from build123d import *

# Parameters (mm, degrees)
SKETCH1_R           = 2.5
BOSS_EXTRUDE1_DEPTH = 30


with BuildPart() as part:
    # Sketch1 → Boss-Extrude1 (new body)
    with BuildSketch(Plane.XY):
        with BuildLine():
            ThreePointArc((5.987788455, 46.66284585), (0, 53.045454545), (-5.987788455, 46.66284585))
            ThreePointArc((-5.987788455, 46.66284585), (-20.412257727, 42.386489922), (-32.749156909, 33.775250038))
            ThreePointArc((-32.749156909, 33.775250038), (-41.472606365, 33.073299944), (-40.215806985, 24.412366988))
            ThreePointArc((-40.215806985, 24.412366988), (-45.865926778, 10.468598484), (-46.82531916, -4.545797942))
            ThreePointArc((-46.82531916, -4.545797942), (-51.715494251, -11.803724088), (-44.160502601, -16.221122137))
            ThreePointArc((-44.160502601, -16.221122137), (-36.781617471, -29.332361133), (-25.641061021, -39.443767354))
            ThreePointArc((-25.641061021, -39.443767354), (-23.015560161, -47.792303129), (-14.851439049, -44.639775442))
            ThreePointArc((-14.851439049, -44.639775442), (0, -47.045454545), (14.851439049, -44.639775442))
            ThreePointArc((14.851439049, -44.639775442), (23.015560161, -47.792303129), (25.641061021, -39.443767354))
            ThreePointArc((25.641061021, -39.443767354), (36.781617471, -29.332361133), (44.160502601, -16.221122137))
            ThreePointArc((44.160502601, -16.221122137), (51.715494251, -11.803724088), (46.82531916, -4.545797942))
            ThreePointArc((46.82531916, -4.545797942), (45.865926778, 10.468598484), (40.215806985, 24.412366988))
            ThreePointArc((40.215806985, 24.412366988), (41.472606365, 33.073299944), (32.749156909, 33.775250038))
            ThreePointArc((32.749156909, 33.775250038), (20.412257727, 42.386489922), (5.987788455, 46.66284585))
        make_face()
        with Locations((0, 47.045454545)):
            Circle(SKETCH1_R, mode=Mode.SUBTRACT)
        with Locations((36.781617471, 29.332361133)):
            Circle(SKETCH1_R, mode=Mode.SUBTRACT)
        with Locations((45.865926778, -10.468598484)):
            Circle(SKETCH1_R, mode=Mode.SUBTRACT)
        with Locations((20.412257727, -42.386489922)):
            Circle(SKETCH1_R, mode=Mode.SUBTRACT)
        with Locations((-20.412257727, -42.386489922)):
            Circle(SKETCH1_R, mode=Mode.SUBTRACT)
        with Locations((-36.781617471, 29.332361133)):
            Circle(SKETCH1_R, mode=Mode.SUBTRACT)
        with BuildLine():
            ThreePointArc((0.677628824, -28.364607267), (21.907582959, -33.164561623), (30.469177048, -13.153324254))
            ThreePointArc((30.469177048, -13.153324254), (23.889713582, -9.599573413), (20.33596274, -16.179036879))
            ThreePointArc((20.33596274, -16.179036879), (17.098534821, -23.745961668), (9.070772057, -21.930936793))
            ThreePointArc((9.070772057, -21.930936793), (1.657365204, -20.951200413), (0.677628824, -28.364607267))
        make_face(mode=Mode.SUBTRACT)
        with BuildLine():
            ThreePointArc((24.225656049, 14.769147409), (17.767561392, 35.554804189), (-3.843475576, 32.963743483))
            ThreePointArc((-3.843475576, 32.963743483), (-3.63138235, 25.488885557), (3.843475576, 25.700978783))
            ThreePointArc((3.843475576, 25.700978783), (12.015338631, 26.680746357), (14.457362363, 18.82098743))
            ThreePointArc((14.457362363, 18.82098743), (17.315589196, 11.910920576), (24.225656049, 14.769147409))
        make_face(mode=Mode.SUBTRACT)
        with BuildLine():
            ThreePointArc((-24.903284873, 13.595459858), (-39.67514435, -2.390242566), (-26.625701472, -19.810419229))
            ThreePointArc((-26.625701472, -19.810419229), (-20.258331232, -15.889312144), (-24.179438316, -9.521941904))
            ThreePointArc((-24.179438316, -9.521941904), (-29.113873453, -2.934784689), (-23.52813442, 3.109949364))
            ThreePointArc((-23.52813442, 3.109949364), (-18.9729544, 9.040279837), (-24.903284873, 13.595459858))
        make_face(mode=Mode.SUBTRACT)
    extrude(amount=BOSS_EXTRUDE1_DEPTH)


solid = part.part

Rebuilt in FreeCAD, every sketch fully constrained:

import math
import FreeCAD as App
import Part
import Sketcher
from FreeCAD import Vector
Q = App.Units.Quantity

doc = App.newDocument("Part")
body = doc.addObject("PartDesign::Body", "Body")

# Sketch on XY plane
sketch1 = body.newObject("Sketcher::SketchObject", "Sketch")
sketch1.AttachmentSupport = (doc.getObject("XY_Plane"), [""])
sketch1.MapMode = "FlatFace"
sketch1.addGeometry([
    Part.ArcOfCircle(Part.Circle(Vector(0, 47, 0), Vector(0, 0, 1), 6), math.radians(-4), math.radians(184)),  # 0
    Part.ArcOfCircle(Part.Circle(Vector(0, 0, 0), Vector(0, 0, 1), 47), math.radians(97), math.radians(134)),  # 1
    Part.ArcOfCircle(Part.Circle(Vector(-36.8, 29.3, 0), Vector(0, 0, 1), 6), math.radians(48), math.radians(235)),  # 2
    Part.ArcOfCircle(Part.Circle(Vector(0, 0, 0), Vector(0, 0, 1), 47), math.radians(149), math.radians(186)),  # 3
    Part.ArcOfCircle(Part.Circle(Vector(-45.9, -10.5, 0), Vector(0, 0, 1), 6), math.radians(99), math.radians(287)),  # 4
    Part.ArcOfCircle(Part.Circle(Vector(0, 0, 0), Vector(0, 0, 1), 47), math.radians(-160), math.radians(-123)),  # 5
    Part.ArcOfCircle(Part.Circle(Vector(-20.4, -42.4, 0), Vector(0, 0, 1), 6), math.radians(151), math.radians(338)),  # 6
    Part.ArcOfCircle(Part.Circle(Vector(0, 0, 0), Vector(0, 0, 1), 47), math.radians(-108), math.radians(-72)),  # 7
    Part.ArcOfCircle(Part.Circle(Vector(20.4, -42.4, 0), Vector(0, 0, 1), 6), math.radians(-158), math.radians(29)),  # 8
    Part.ArcOfCircle(Part.Circle(Vector(0, 0, 0), Vector(0, 0, 1), 47), math.radians(-57), math.radians(-20)),  # 9
    Part.ArcOfCircle(Part.Circle(Vector(45.9, -10.5, 0), Vector(0, 0, 1), 6), math.radians(-107), math.radians(81)),  # 10
    Part.ArcOfCircle(Part.Circle(Vector(0, 0, 0), Vector(0, 0, 1), 47), math.radians(-6), math.radians(31)),  # 11
    Part.ArcOfCircle(Part.Circle(Vector(36.8, 29.3, 0), Vector(0, 0, 1), 6), math.radians(-55), math.radians(132)),  # 12
    Part.ArcOfCircle(Part.Circle(Vector(0, 0, 0), Vector(0, 0, 1), 47), math.radians(46), math.radians(83)),  # 13
    Part.Circle(Vector(-20.4, -42.4, 0), Vector(0, 0, 1), 2.5),  # 14
    Part.ArcOfCircle(Part.Circle(Vector(-22.7, -3.3, 0), Vector(0, 0, 1), 17), math.radians(97), math.radians(257)),  # 15
    Part.ArcOfCircle(Part.Circle(Vector(-24.2, 8.4, 0), Vector(0, 0, 1), 5.3), math.radians(-83), math.radians(97)),  # 16
    Part.ArcOfCircle(Part.Circle(Vector(-22.7, -3.3, 0), Vector(0, 0, 1), 6.4), math.radians(97), math.radians(257)),  # 17
    Part.ArcOfCircle(Part.Circle(Vector(-25.4, -14.7, 0), Vector(0, 0, 1), 5.3), math.radians(-103), math.radians(77)),  # 18
    Part.Circle(Vector(20.4, -42.4, 0), Vector(0, 0, 1), 2.5),  # 19
    Part.ArcOfCircle(Part.Circle(Vector(14.2, -18, 0), Vector(0, 0, 1), 17), math.radians(-143), math.radians(17)),  # 20
    Part.ArcOfCircle(Part.Circle(Vector(4.9, -25.1, 0), Vector(0, 0, 1), 5.3), math.radians(37), math.radians(217)),  # 21
    Part.ArcOfCircle(Part.Circle(Vector(14.2, -18, 0), Vector(0, 0, 1), 6.4), math.radians(-143), math.radians(17)),  # 22
    Part.ArcOfCircle(Part.Circle(Vector(25.4, -14.7, 0), Vector(0, 0, 1), 5.3), math.radians(17), math.radians(197)),  # 23
    Part.Circle(Vector(45.9, -10.5, 0), Vector(0, 0, 1), 2.5),  # 24
    Part.Circle(Vector(-36.8, 29.3, 0), Vector(0, 0, 1), 2.5),  # 25
    Part.Circle(Vector(0, 47, 0), Vector(0, 0, 1), 2.5),  # 26
    Part.ArcOfCircle(Part.Circle(Vector(8.5, 21.3, 0), Vector(0, 0, 1), 17), math.radians(-23), math.radians(137)),  # 27
    Part.ArcOfCircle(Part.Circle(Vector(19.3, 16.8, 0), Vector(0, 0, 1), 5.3), math.radians(157), math.radians(337)),  # 28
    Part.ArcOfCircle(Part.Circle(Vector(8.5, 21.3, 0), Vector(0, 0, 1), 6.4), math.radians(-23), math.radians(137)),  # 29
    Part.ArcOfCircle(Part.Circle(Vector(0, 29.3, 0), Vector(0, 0, 1), 5.3), math.radians(137), math.radians(317)),  # 30
    Part.Circle(Vector(36.8, 29.3, 0), Vector(0, 0, 1), 2.5),  # 31
], False)
sketch1.addConstraint([
    Sketcher.Constraint("Coincident", 0, 2, 1, 1),
    Sketcher.Constraint("Coincident", 1, 2, 2, 1),
    Sketcher.Constraint("Coincident", 2, 2, 3, 1),
    Sketcher.Constraint("Coincident", 3, 2, 4, 1),
    Sketcher.Constraint("Coincident", 4, 2, 5, 1),
    Sketcher.Constraint("Coincident", 5, 2, 6, 1),
    Sketcher.Constraint("Coincident", 6, 2, 7, 1),
    Sketcher.Constraint("Coincident", 7, 2, 8, 1),
    Sketcher.Constraint("Coincident", 8, 2, 9, 1),
    Sketcher.Constraint("Coincident", 9, 2, 10, 1),
    Sketcher.Constraint("Coincident", 10, 2, 11, 1),
    Sketcher.Constraint("Coincident", 11, 2, 12, 1),
    Sketcher.Constraint("Coincident", 12, 2, 13, 1),
    Sketcher.Constraint("Coincident", 13, 2, 0, 1),
    Sketcher.Constraint("Tangent", 15, 1, 16, 2),
    Sketcher.Constraint("Tangent", 16, 1, 17, 1),
    Sketcher.Constraint("Tangent", 17, 2, 18, 2),
    Sketcher.Constraint("Tangent", 18, 1, 15, 2),
    Sketcher.Constraint("Tangent", 20, 1, 21, 2),
    Sketcher.Constraint("Tangent", 21, 1, 22, 1),
    Sketcher.Constraint("Tangent", 22, 2, 23, 2),
    Sketcher.Constraint("Tangent", 23, 1, 20, 2),
    Sketcher.Constraint("Tangent", 27, 1, 28, 2),
    Sketcher.Constraint("Tangent", 28, 1, 29, 1),
    Sketcher.Constraint("Tangent", 29, 2, 30, 2),
    Sketcher.Constraint("Tangent", 30, 1, 27, 2),
    Sketcher.Constraint("Coincident", 1, 3, -1, 1),
    Sketcher.Constraint("Coincident", 3, 3, -1, 1),
    Sketcher.Constraint("Coincident", 5, 3, -1, 1),
    Sketcher.Constraint("Coincident", 7, 3, -1, 1),
    Sketcher.Constraint("Coincident", 9, 3, -1, 1),
    Sketcher.Constraint("Coincident", 11, 3, -1, 1),
    Sketcher.Constraint("Coincident", 13, 3, -1, 1),
    Sketcher.Constraint("Coincident", 14, 3, 6, 3),
    Sketcher.Constraint("Coincident", 17, 3, 15, 3),
    Sketcher.Constraint("Coincident", 19, 3, 8, 3),
    Sketcher.Constraint("Coincident", 22, 3, 20, 3),
    Sketcher.Constraint("Coincident", 24, 3, 10, 3),
    Sketcher.Constraint("Coincident", 25, 3, 2, 3),
    Sketcher.Constraint("Coincident", 26, 3, 0, 3),
    Sketcher.Constraint("Coincident", 29, 3, 27, 3),
    Sketcher.Constraint("Coincident", 31, 3, 12, 3),
    Sketcher.Constraint("Equal", 0, 2),
    Sketcher.Constraint("Equal", 1, 3),
    Sketcher.Constraint("Equal", 2, 4),
    Sketcher.Constraint("Equal", 3, 5),
    Sketcher.Constraint("Equal", 4, 6),
    Sketcher.Constraint("Equal", 5, 7),
    Sketcher.Constraint("Equal", 6, 8),
    Sketcher.Constraint("Equal", 7, 9),
    Sketcher.Constraint("Equal", 8, 10),
    Sketcher.Constraint("Equal", 9, 11),
    Sketcher.Constraint("Equal", 10, 12),
    Sketcher.Constraint("Equal", 11, 13),
    Sketcher.Constraint("Equal", 14, 19),
    Sketcher.Constraint("Equal", 15, 20),
    Sketcher.Constraint("Equal", 18, 21),
    Sketcher.Constraint("Equal", 19, 24),
    Sketcher.Constraint("Equal", 24, 25),
    Sketcher.Constraint("Equal", 25, 26),
    Sketcher.Constraint("Equal", 20, 27),
    Sketcher.Constraint("Equal", 23, 28),
    Sketcher.Constraint("Equal", 26, 31),
    Sketcher.Constraint("Symmetric", 6, 3, 8, 3, -2),
    Sketcher.Constraint("Symmetric", 4, 3, 10, 3, -2),
    Sketcher.Constraint("Symmetric", 2, 3, 12, 3, -2),
    Sketcher.Constraint("Symmetric", 18, 3, 23, 3, -2),
    Sketcher.Constraint("PointOnObject", 0, 3, -2),
    Sketcher.Constraint("PointOnObject", 30, 3, -2),
    Sketcher.Constraint("Horizontal", 25, 3, 30, 3),
    Sketcher.Constraint("Diameter", 14, Q("5 mm")),
    Sketcher.Constraint("Radius", 0, Q("6 mm")),
    Sketcher.Constraint("Radius", 16, Q("5.28765 mm")),
    Sketcher.Constraint("Radius", 1, Q("47.045455 mm")),
    Sketcher.Constraint("Radius", 15, Q("17.005748 mm")),
    Sketcher.Constraint("DistanceY", 4, 3, -1, 1, Q("10.468598 mm")),
    Sketcher.Constraint("DistanceY", 15, 3, -1, 1, Q("3.265901 mm")),
    Sketcher.Constraint("DistanceX", -1, 1, 21, 3, Q("4.8742 mm")),
    Sketcher.Constraint("DistanceX", 18, 1, -1, 1, Q("26.625701 mm")),
    Sketcher.Constraint("DistanceY", 27, 3, 30, 3, Q("8.0476 mm")),
    Sketcher.Constraint("DistanceY", 10, 3, 10, 2, Q("5.922801 mm")),
    Sketcher.Constraint("DistanceY", 28, 3, 11, 2, Q("7.6173 mm")),
    Sketcher.Constraint("DistanceY", 15, 1, 2, 3, Q("15.736901 mm")),
    Sketcher.Constraint("DistanceY", 21, 1, 22, 2, Q("5.7519 mm")),
    Sketcher.Constraint("DistanceY", -1, 1, 2, 3, Q("29.332361 mm")),
    Sketcher.Constraint("DistanceY", 6, 3, -1, 1, Q("42.38649 mm")),
    Sketcher.Constraint("DistanceX", 16, 3, -1, 1, Q("24.21571 mm")),
    Sketcher.Constraint("DistanceX", -1, 1, 28, 3, Q("19.341509 mm")),
    Sketcher.Constraint("DistanceX", 0, 2, -1, 1, Q("5.987788 mm")),
    Sketcher.Constraint("DistanceX", 5, 2, -1, 1, Q("25.641061 mm")),
])
pad1 = body.newObject("PartDesign::Pad", "Pad")
pad1.Profile = sketch1
pad1.Length = 30

doc.recompute()
